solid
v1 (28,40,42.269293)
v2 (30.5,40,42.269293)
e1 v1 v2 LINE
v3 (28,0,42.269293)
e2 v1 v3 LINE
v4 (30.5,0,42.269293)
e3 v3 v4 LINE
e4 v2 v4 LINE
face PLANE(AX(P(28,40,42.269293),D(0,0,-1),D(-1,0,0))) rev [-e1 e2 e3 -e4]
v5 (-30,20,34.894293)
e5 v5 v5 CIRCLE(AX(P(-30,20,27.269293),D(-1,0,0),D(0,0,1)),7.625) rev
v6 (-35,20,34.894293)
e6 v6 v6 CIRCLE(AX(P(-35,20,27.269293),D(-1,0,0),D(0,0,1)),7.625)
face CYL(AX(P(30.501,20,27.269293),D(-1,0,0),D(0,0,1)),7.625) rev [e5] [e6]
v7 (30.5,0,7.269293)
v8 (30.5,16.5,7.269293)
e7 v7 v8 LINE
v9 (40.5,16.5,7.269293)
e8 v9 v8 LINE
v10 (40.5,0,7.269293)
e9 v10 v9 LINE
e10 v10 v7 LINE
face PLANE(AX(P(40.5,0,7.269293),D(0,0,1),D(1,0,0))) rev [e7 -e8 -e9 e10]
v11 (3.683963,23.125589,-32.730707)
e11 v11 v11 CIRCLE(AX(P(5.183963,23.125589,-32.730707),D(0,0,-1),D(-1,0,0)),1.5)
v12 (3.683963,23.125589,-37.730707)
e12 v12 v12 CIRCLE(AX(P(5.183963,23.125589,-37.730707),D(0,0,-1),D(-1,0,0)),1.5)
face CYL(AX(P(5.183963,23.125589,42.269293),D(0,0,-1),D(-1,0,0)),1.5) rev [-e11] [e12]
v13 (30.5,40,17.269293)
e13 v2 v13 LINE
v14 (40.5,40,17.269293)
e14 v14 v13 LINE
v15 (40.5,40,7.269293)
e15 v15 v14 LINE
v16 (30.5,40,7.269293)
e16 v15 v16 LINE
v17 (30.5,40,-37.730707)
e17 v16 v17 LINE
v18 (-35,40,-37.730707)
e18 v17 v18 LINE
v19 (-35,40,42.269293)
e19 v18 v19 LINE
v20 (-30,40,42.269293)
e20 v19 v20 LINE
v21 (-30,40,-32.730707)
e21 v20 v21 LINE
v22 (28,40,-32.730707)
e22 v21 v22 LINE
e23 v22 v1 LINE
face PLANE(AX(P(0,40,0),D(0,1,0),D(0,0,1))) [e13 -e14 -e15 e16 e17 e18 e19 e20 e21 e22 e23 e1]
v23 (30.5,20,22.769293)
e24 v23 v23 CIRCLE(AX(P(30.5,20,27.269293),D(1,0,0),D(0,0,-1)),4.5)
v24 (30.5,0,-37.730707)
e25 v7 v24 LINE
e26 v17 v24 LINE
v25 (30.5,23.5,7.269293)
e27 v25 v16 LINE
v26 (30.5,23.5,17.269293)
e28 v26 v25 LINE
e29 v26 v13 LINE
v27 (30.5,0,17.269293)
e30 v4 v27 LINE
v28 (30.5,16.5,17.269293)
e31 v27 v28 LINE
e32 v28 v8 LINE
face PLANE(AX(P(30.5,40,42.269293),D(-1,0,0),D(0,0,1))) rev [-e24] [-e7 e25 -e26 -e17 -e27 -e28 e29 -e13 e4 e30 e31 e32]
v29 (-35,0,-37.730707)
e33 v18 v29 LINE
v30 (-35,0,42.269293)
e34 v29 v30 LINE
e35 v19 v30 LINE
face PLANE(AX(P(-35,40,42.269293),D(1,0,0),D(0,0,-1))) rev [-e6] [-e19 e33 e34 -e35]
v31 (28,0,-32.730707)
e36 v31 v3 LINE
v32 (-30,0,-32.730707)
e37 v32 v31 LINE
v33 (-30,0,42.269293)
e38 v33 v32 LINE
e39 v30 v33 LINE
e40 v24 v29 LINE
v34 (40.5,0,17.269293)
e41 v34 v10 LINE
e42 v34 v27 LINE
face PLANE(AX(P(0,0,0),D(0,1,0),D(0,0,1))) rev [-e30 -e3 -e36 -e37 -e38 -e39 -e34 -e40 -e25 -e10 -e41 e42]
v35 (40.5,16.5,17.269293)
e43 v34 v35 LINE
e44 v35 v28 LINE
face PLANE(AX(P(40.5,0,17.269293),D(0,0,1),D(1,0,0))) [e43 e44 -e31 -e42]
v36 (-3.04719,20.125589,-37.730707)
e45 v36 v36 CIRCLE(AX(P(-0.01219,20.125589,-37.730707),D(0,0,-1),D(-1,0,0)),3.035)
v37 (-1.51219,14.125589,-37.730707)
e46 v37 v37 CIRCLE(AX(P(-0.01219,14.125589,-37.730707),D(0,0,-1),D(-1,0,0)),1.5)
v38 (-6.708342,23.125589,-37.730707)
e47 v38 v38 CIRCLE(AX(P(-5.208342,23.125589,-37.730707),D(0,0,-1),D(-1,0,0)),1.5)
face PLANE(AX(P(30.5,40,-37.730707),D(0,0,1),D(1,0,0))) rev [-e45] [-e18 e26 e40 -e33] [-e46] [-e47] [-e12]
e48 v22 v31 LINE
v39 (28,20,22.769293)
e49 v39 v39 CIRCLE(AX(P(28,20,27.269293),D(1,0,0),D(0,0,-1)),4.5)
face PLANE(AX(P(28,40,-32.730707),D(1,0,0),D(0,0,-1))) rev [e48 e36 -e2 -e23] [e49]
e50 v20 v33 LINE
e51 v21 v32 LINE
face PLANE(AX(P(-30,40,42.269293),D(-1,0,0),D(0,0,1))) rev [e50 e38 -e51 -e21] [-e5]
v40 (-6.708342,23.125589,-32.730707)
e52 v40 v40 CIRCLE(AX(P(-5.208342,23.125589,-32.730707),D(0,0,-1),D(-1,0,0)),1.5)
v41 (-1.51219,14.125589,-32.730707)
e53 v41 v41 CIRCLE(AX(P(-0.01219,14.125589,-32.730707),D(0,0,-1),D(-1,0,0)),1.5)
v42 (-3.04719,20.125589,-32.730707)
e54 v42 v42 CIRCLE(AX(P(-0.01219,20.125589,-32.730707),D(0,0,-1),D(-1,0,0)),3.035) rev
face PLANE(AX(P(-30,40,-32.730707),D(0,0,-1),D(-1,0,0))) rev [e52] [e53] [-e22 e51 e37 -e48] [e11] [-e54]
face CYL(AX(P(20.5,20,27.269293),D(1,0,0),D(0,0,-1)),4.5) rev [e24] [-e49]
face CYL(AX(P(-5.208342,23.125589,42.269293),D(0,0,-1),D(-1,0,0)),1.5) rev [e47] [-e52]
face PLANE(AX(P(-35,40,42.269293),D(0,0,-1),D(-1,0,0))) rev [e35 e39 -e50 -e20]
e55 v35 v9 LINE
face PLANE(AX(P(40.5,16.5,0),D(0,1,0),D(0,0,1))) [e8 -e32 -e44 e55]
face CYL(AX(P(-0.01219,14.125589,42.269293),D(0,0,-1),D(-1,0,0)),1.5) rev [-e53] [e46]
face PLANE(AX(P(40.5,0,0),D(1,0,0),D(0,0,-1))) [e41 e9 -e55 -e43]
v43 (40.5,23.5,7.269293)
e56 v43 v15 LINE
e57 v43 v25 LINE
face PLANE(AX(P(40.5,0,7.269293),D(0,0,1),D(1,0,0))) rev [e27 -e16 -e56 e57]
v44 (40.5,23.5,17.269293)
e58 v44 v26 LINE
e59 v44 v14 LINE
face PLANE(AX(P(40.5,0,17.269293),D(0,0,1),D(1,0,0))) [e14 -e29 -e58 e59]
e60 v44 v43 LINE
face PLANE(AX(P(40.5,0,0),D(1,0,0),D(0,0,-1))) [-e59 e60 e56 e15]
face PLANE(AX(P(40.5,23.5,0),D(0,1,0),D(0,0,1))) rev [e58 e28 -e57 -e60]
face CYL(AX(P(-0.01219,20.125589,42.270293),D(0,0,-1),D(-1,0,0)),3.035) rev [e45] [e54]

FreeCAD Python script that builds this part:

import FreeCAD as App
import Part
import Sketcher

V = App.Vector
Q = App.Units.Quantity

doc = App.newDocument("Part")
body = doc.addObject("PartDesign::Body", "Body")

sketch1 = doc.addObject("Sketcher::SketchObject", "Sketch")
body.addObject(sketch1)
sketch1.AttachmentSupport = (doc.XZ_Plane, [""])
sketch1.MapMode = "FlatFace"
sketch1.addGeometry([
    Part.LineSegment(V(-35, 42.269293, 0), V(-30, 42.269293, 0)),
    Part.LineSegment(V(-30, 42.269293, 0), V(-30, -32.730707, 0)),
    Part.LineSegment(V(-30, -32.730707, 0), V(28, -32.730707, 0)),
    Part.LineSegment(V(28, -32.730707, 0), V(28, 42.269293, 0)),
    Part.LineSegment(V(28, 42.269293, 0), V(30.5, 42.269293, 0)),
    Part.LineSegment(V(30.5, 42.269293, 0), V(30.5, -37.730707, 0)),
    Part.LineSegment(V(30.5, -37.730707, 0), V(-35, -37.730707, 0)),
    Part.LineSegment(V(-35, -37.730707, 0), V(-35, 42.269293, 0)),
], False)
sketch1.addConstraint([
    Sketcher.Constraint("Coincident", 0, 2, 1, 1),
    Sketcher.Constraint("Coincident", 1, 2, 2, 1),
    Sketcher.Constraint("Coincident", 2, 2, 3, 1),
    Sketcher.Constraint("Coincident", 3, 2, 4, 1),
    Sketcher.Constraint("Coincident", 4, 2, 5, 1),
    Sketcher.Constraint("Coincident", 5, 2, 6, 1),
    Sketcher.Constraint("Coincident", 6, 2, 7, 1),
    Sketcher.Constraint("Coincident", 7, 2, 0, 1),
    Sketcher.Constraint("Horizontal", 0),
    Sketcher.Constraint("Vertical", 1),
    Sketcher.Constraint("Horizontal", 2),
    Sketcher.Constraint("Vertical", 3),
    Sketcher.Constraint("Horizontal", 4),
    Sketcher.Constraint("Vertical", 5),
    Sketcher.Constraint("Horizontal", 6),
    Sketcher.Constraint("Vertical", 7),
    Sketcher.Constraint("Horizontal", 0, 2, 3, 2),
    Sketcher.Constraint("DistanceX", 0, 1, 0, 2, Q("5 mm")),
    Sketcher.Constraint("DistanceX", 2, 1, 2, 2, Q("58 mm")),
    Sketcher.Constraint("DistanceY", 1, 2, 1, 1, Q("75 mm")),
    Sketcher.Constraint("DistanceY", 5, 2, 5, 1, Q("80 mm")),
    Sketcher.Constraint("DistanceX", 4, 1, 4, 2, Q("2.5 mm")),
    Sketcher.Constraint("DistanceX", 0, 2, -1, 1, Q("30 mm")),
    Sketcher.Constraint("DistanceY", -1, 1, 0, 2, Q("42.269293 mm")),
])
pad1 = doc.addObject("PartDesign::Pad", "Pad")
body.addObject(pad1)
pad1.Profile = sketch1
pad1.Length = 40
pad1.Reversed = True

sketch2 = doc.addObject("Sketcher::SketchObject", "Sketch001")
body.addObject(sketch2)
sketch2.AttachmentSupport = (doc.XY_Plane, [""])
sketch2.MapMode = "FlatFace"
sketch2.AttachmentOffset = App.Placement(V(0, 0, -37.730707), App.Rotation())
sketch2.addGeometry([
    Part.Circle(V(-5.208342, 23.125589, 0), V(0, 0, 1), 1.5),
    Part.Circle(V(-0.01219, 14.125589, 0), V(0, 0, 1), 1.5),
    Part.Circle(V(5.183963, 23.125589, 0), V(0, 0, 1), 1.5),
], False)
sketch2.addConstraint([
    Sketcher.Constraint("Equal", 0, 1),
    Sketcher.Constraint("Equal", 1, 2),
    Sketcher.Constraint("Horizontal", 0, 3, 2, 3),
    Sketcher.Constraint("Diameter", 0, Q("3 mm")),
    Sketcher.Constraint("DistanceY", 1, 3, 0, 3, Q("9 mm")),
    Sketcher.Constraint("DistanceY", -1, 1, 0, 3, Q("23.125589 mm")),
    Sketcher.Constraint("DistanceX", 1, 3, -1, 1, Q("0.01219 mm")),
    Sketcher.Constraint("DistanceX", 0, 3, -1, 1, Q("5.208342 mm")),
    Sketcher.Constraint("DistanceX", -1, 1, 2, 3, Q("5.183963 mm")),
])
pocket1 = doc.addObject("PartDesign::Pocket", "Pocket")
body.addObject(pocket1)
pocket1.Profile = sketch2
pocket1.Type = "ThroughAll"
pocket1.Reversed = True

sketch3 = doc.addObject("Sketcher::SketchObject", "Sketch002")
body.addObject(sketch3)
sketch3.AttachmentSupport = (doc.YZ_Plane, [""])
sketch3.MapMode = "FlatFace"
sketch3.AttachmentOffset = App.Placement(V(0, 0, -35), App.Rotation())
sketch3.addGeometry(Part.Circle(V(20, 27.269293, 0), V(0, 0, 1), 7.625), False)
sketch3.addConstraint([
    Sketcher.Constraint("Diameter", 0, Q("15.25 mm")),
    Sketcher.Constraint("DistanceX", -1, 1, 0, 3, Q("20 mm")),
    Sketcher.Constraint("DistanceY", -1, 1, 0, 3, Q("27.269293 mm")),
])
pocket2 = doc.addObject("PartDesign::Pocket", "Pocket001")
body.addObject(pocket2)
pocket2.Profile = sketch3
pocket2.Type = "UpToFirst"
pocket2.Reversed = True

sketch4 = doc.addObject("Sketcher::SketchObject", "Sketch003")
body.addObject(sketch4)
sketch4.AttachmentSupport = (doc.YZ_Plane, [""])
sketch4.MapMode = "FlatFace"
sketch4.AttachmentOffset = App.Placement(V(0, 0, 30.5), App.Rotation())
sketch4.addGeometry(Part.Circle(V(20, 27.269293, 0), V(0, 0, 1), 4.5), False)
sketch4.addConstraint([
    Sketcher.Constraint("Diameter", 0, Q("9 mm")),
    Sketcher.Constraint("DistanceX", -1, 1, 0, 3, Q("20 mm")),
    Sketcher.Constraint("DistanceY", -1, 1, 0, 3, Q("27.269293 mm")),
])
pocket3 = doc.addObject("PartDesign::Pocket", "Pocket002")
body.addObject(pocket3)
pocket3.Profile = sketch4
pocket3.Length = 10

sketch5 = doc.addObject("Sketcher::SketchObject", "Sketch004")
body.addObject(sketch5)
sketch5.AttachmentSupport = (doc.YZ_Plane, [""])
sketch5.MapMode = "FlatFace"
sketch5.AttachmentOffset = App.Placement(V(0, 0, 30.5), App.Rotation())
sketch5.addGeometry([
    Part.LineSegment(V(16.5, 17.269293, 0), V(0, 17.269293, 0)),
    Part.LineSegment(V(0, 17.269293, 0), V(0, 7.269293, 0)),
    Part.LineSegment(V(0, 7.269293, 0), V(16.5, 7.269293, 0)),
    Part.LineSegment(V(16.5, 7.269293, 0), V(16.5, 17.269293, 0)),
    Part.LineSegment(V(40, 17.269293, 0), V(23.5, 17.269293, 0)),
    Part.LineSegment(V(23.5, 17.269293, 0), V(23.5, 7.269293, 0)),
    Part.LineSegment(V(23.5, 7.269293, 0), V(40, 7.269293, 0)),
    Part.LineSegment(V(40, 7.269293, 0), V(40, 17.269293, 0)),
], False)
sketch5.addConstraint([
    Sketcher.Constraint("Coincident", 0, 2, 1, 1),
    Sketcher.Constraint("Coincident", 1, 2, 2, 1),
    Sketcher.Constraint("Coincident", 2, 2, 3, 1),
    Sketcher.Constraint("Coincident", 3, 2, 0, 1),
    Sketcher.Constraint("Coincident", 4, 2, 5, 1),
    Sketcher.Constraint("Coincident", 5, 2, 6, 1),
    Sketcher.Constraint("Coincident", 6, 2, 7, 1),
    Sketcher.Constraint("Coincident", 7, 2, 4, 1),
    Sketcher.Constraint("Horizontal", 0),
    Sketcher.Constraint("Vertical", 1),
    Sketcher.Constraint("Horizontal", 2),
    Sketcher.Constraint("Vertical", 3),
    Sketcher.Constraint("Horizontal", 4),
    Sketcher.Constraint("Vertical", 5),
    Sketcher.Constraint("Horizontal", 6),
    Sketcher.Constraint("Vertical", 7),
    Sketcher.Constraint("PointOnObject", 0, 2, -2),
    Sketcher.Constraint("Horizontal", 3, 2, 4, 2),
    Sketcher.Constraint("Horizontal", 2, 2, 5, 2),
    Sketcher.Constraint("Equal", 2, 4),
    Sketcher.Constraint("DistanceY", 1, 2, 1, 1, Q("10 mm")),
    Sketcher.Constraint("DistanceX", 0, 2, 0, 1, Q("16.5 mm")),
    Sketcher.Constraint("DistanceX", -1, 1, 6, 2, Q("40 mm")),
    Sketcher.Constraint("DistanceY", -1, 1, 0, 2, Q("17.269293 mm")),
])
pad2 = doc.addObject("PartDesign::Pad", "Pad001")
body.addObject(pad2)
pad2.Profile = sketch5
pad2.Length = 10

sketch6 = doc.addObject("Sketcher::SketchObject", "Sketch005")
body.addObject(sketch6)
sketch6.AttachmentSupport = (doc.XY_Plane, [""])
sketch6.MapMode = "FlatFace"
sketch6.AttachmentOffset = App.Placement(V(0, 0, -37.730707), App.Rotation())
sketch6.addGeometry(Part.Circle(V(-0.01219, 20.125589, 0), V(0, 0, 1), 3.035), False)
sketch6.addConstraint([
    Sketcher.Constraint("Diameter", 0, Q("6.07 mm")),
    Sketcher.Constraint("DistanceX", 0, 3, -1, 1, Q("0.01219 mm")),
    Sketcher.Constraint("DistanceY", -1, 1, 0, 3, Q("20.125589 mm")),
])
pocket4 = doc.addObject("PartDesign::Pocket", "Pocket003")
body.addObject(pocket4)
pocket4.Profile = sketch6
pocket4.Type = "UpToFirst"
pocket4.Reversed = True

doc.recompute()
